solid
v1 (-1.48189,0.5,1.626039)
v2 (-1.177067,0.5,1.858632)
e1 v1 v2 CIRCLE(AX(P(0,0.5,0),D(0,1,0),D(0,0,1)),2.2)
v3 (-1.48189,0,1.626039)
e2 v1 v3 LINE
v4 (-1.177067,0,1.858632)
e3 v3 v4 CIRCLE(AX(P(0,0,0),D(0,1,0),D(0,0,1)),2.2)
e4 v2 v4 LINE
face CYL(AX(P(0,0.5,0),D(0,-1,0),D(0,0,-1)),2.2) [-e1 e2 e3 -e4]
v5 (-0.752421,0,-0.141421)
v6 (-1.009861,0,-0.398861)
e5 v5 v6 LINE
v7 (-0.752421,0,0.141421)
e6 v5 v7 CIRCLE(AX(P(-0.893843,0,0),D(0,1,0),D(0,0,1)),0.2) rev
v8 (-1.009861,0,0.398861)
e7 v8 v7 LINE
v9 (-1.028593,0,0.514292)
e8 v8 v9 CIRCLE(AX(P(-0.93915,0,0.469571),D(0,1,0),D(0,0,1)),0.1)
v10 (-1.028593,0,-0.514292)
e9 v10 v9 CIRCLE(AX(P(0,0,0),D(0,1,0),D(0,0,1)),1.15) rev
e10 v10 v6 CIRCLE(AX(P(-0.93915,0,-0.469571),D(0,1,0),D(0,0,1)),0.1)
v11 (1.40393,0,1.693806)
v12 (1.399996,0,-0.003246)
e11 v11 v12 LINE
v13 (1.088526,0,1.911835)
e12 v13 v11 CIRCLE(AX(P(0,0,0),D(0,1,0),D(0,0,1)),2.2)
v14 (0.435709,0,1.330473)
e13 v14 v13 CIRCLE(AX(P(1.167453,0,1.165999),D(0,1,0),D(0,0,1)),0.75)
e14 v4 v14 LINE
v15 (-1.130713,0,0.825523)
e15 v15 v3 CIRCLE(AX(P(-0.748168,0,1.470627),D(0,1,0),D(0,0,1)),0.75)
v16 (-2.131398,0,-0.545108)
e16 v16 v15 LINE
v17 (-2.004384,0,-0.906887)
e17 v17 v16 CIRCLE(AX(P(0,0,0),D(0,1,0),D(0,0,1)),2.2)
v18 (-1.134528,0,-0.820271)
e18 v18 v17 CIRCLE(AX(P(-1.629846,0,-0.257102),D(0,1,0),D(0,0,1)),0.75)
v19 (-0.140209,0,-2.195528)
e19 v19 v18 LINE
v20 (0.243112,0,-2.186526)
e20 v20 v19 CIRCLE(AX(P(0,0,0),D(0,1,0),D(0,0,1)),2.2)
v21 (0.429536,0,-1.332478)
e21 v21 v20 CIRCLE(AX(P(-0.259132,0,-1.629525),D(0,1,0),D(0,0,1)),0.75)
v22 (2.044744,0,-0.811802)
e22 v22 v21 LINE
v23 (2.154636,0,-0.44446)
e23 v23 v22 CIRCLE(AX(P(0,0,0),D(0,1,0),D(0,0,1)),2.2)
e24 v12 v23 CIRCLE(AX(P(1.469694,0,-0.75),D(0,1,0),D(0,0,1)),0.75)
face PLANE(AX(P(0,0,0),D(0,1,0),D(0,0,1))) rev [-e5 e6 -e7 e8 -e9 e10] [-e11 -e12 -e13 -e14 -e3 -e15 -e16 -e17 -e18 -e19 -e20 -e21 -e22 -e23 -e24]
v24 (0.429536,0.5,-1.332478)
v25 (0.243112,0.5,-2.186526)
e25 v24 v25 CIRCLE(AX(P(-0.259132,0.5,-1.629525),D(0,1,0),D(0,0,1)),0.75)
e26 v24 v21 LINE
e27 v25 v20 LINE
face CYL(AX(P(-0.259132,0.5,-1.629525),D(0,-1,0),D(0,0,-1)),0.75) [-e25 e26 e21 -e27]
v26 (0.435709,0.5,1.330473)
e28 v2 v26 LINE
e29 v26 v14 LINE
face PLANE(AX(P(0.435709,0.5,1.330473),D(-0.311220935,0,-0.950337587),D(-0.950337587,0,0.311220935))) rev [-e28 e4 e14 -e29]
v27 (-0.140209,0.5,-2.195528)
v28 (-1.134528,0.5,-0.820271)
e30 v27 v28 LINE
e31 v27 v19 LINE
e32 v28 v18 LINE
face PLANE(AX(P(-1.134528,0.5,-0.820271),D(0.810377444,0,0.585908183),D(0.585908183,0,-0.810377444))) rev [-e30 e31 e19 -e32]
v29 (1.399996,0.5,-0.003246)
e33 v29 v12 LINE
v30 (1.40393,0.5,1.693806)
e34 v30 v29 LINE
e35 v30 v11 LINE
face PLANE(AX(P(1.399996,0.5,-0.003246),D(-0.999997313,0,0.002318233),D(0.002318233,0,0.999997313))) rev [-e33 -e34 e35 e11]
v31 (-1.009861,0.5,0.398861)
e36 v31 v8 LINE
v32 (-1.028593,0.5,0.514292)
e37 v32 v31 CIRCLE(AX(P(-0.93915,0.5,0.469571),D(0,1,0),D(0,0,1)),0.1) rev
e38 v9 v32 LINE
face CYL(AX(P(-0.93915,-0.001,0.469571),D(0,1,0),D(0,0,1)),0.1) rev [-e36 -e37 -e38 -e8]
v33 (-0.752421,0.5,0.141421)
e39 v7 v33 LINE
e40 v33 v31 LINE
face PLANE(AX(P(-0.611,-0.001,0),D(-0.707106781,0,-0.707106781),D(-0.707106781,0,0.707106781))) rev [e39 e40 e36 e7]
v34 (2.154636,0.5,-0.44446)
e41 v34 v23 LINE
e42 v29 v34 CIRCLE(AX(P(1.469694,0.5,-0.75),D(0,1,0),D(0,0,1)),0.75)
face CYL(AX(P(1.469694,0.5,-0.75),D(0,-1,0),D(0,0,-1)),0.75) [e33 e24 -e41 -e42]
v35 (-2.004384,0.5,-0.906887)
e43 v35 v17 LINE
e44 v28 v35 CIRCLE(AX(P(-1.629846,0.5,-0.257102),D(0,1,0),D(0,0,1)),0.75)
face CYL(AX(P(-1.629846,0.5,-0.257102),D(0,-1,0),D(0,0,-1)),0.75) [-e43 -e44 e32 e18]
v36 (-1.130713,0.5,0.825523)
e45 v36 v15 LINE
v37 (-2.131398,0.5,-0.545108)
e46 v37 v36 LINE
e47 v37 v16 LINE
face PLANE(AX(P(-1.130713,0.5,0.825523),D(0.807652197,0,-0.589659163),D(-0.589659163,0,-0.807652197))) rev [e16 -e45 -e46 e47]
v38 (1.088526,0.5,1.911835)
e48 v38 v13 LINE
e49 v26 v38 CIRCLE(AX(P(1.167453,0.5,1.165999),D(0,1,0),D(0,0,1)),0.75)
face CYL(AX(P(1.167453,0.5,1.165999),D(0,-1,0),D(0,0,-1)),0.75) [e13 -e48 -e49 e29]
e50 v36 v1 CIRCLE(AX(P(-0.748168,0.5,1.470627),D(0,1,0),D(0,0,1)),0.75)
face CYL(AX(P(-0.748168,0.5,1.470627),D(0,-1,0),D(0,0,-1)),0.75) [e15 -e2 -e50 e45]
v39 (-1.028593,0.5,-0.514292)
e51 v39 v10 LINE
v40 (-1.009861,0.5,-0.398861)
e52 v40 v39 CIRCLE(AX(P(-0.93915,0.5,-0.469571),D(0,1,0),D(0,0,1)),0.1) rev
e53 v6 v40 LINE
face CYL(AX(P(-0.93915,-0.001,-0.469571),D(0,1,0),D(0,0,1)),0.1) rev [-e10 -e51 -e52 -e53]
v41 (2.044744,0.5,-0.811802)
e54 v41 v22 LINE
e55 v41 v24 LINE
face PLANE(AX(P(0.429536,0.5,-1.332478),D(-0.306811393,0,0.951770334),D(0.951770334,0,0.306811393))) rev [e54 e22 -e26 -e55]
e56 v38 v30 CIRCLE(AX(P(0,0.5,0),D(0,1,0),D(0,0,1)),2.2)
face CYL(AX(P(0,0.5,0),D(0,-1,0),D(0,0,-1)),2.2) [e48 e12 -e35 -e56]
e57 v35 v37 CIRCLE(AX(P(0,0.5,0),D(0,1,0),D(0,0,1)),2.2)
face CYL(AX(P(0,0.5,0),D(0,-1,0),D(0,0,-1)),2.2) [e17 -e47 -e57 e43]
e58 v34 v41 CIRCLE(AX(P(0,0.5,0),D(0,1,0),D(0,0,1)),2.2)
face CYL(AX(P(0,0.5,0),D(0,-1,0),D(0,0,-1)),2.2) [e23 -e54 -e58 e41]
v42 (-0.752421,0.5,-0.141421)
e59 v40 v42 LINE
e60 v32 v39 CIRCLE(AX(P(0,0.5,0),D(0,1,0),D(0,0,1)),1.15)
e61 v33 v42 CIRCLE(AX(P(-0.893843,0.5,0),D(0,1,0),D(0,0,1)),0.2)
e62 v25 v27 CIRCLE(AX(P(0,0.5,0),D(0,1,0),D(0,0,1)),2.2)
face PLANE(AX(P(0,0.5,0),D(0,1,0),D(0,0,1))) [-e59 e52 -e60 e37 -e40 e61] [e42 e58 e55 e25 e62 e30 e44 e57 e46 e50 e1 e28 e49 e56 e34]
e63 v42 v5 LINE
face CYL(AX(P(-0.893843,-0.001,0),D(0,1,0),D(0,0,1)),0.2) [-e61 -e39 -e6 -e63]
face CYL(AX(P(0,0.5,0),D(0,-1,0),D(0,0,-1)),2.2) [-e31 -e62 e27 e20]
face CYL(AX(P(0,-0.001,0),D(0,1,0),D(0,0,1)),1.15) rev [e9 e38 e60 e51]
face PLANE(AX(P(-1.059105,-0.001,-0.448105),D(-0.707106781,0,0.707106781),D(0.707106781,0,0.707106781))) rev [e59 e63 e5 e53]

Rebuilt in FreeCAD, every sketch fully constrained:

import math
import FreeCAD as App
import Part
import Sketcher

V = App.Vector


def edges_at(feature, points):
    """Names of the edges that pass closest to the given points."""
    edges = feature.Shape.Edges
    near = lambda p: min(range(len(edges)), key=lambda i: edges[i].distToShape(Part.Vertex(*p))[0])
    return sorted({f"Edge{near(p) + 1}" for p in points})

doc = App.newDocument("Part")
params = doc.addObject("Spreadsheet::Sheet", "Params")
for row, (alias, value) in enumerate([
    ("sketch1_radius", "2.2 mm"),
    ("sketch1_radius2", "2.2 mm"),
    ("sketch1_radius3", "2.2 mm"),
    ("sketch1_radius4", "2.2 mm"),
    ("sketch1_radius5", "2.2 mm"),
    ("pad1_length", "0.5 mm"),
    ("sketch2_radius", "1.15 mm"),
    ("fillet_radius", "0.1 mm"),
    ("fillet2_radius", "0.2 mm"),
], start=1):
    params.set(f"A{row}", alias)
    params.set(f"B{row}", "=" + value)
    params.setAlias(f"B{row}", alias)

body = doc.addObject("PartDesign::Body", "Body")

# Sketch on XZ plane
sketch1 = body.newObject("Sketcher::SketchObject", "Sketch")
sketch1.AttachmentSupport = (doc.getObject("XZ_Plane"), [""])
sketch1.MapMode = "FlatFace"
sketch1.addGeometry(Part.LineSegment(V(-2.131398, -0.545108, 0), V(-1.130713, 0.825523, 0)), False)
sketch1.addGeometry(Part.ArcOfCircle(Part.Circle(V(-0.748168, 1.470627, 0), V(0, 0, 1), 0.75), math.radians(168.040762), math.radians(239.332199)), False)
sketch1.addGeometry(Part.ArcOfCircle(Part.Circle(V(0, 0, 0), V(0, 0, 1), 2.2), math.radians(122.345979), math.radians(132.344462)), False)
sketch1.addGeometry(Part.LineSegment(V(-1.177067, 1.858632, 0), V(0.435709, 1.330473, 0)), False)
sketch1.addGeometry(Part.ArcOfCircle(Part.Circle(V(1.167453, 1.165999, 0), V(0, 0, 1), 0.75), math.radians(96.040762), math.radians(167.332199)), False)
sketch1.addGeometry(Part.ArcOfCircle(Part.Circle(V(0, 0, 0), V(0, 0, 1), 2.2), math.radians(50.345978), math.radians(60.344463)), False)
sketch1.addGeometry(Part.LineSegment(V(1.40393, 1.693806, 0), V(1.399996, -0.003246, 0)), False)
sketch1.addGeometry(Part.ArcOfCircle(Part.Circle(V(1.469694, -0.75, 0), V(0, 0, 1), 0.75), math.radians(24.040762), math.radians(95.332199)), False)
sketch1.addGeometry(Part.ArcOfCircle(Part.Circle(V(0, 0, 0), V(0, 0, 1), 2.2), math.radians(-21.654022), math.radians(-11.655537)), False)
sketch1.addGeometry(Part.LineSegment(V(2.044744, -0.811802, 0), V(0.429536, -1.332478, 0)), False)
sketch1.addGeometry(Part.ArcOfCircle(Part.Circle(V(-0.259132, -1.629525, 0), V(0, 0, 1), 0.75), math.radians(-47.959238), math.radians(23.332199)), False)
sketch1.addGeometry(Part.ArcOfCircle(Part.Circle(V(0, 0, 0), V(0, 0, 1), 2.2), math.radians(-93.654021), math.radians(-83.655538)), False)
sketch1.addGeometry(Part.LineSegment(V(-0.140209, -2.195528, 0), V(-1.134528, -0.820271, 0)), False)
sketch1.addGeometry(Part.ArcOfCircle(Part.Circle(V(-1.629846, -0.257102, 0), V(0, 0, 1), 0.75), math.radians(-119.959238), math.radians(-48.667801)), False)
sketch1.addGeometry(Part.ArcOfCircle(Part.Circle(V(0, 0, 0), V(0, 0, 1), 2.2), math.radians(-165.654021), math.radians(-155.655538)), False)
sketch1.addConstraint(Sketcher.Constraint("Coincident", 0, 2, 1, 2))
sketch1.addConstraint(Sketcher.Constraint("Coincident", 1, 1, 2, 2))
sketch1.addConstraint(Sketcher.Constraint("Coincident", 2, 1, 3, 1))
sketch1.addConstraint(Sketcher.Constraint("Coincident", 3, 2, 4, 2))
sketch1.addConstraint(Sketcher.Constraint("Coincident", 4, 1, 5, 2))
sketch1.addConstraint(Sketcher.Constraint("Coincident", 5, 1, 6, 1))
sketch1.addConstraint(Sketcher.Constraint("Coincident", 6, 2, 7, 2))
sketch1.addConstraint(Sketcher.Constraint("Coincident", 7, 1, 8, 2))
sketch1.addConstraint(Sketcher.Constraint("Coincident", 8, 1, 9, 1))
sketch1.addConstraint(Sketcher.Constraint("Coincident", 9, 2, 10, 2))
sketch1.addConstraint(Sketcher.Constraint("Coincident", 10, 1, 11, 2))
sketch1.addConstraint(Sketcher.Constraint("Coincident", 11, 1, 12, 1))
sketch1.addConstraint(Sketcher.Constraint("Coincident", 12, 2, 13, 2))
sketch1.addConstraint(Sketcher.Constraint("Coincident", 13, 1, 14, 2))
sketch1.addConstraint(Sketcher.Constraint("Coincident", 14, 1, 0, 1))
sketch1.addConstraint(Sketcher.Constraint("Coincident", 2, 3, -1, 1))
sketch1.addConstraint(Sketcher.Constraint("Coincident", 5, 3, -1, 1))
sketch1.addConstraint(Sketcher.Constraint("Coincident", 8, 3, -1, 1))
sketch1.addConstraint(Sketcher.Constraint("Coincident", 11, 3, -1, 1))
sketch1.addConstraint(Sketcher.Constraint("Coincident", 14, 3, -1, 1))
sketch1.addConstraint(Sketcher.Constraint("Radius", 2, 2.2))
sketch1.addConstraint(Sketcher.Constraint("Radius", 5, 2.2))
sketch1.addConstraint(Sketcher.Constraint("Radius", 8, 2.2))
sketch1.addConstraint(Sketcher.Constraint("Radius", 11, 2.2))
sketch1.addConstraint(Sketcher.Constraint("Radius", 14, 2.2))
sketch1.addConstraint(Sketcher.Constraint("Radius", 1, 0.75))
sketch1.addConstraint(Sketcher.Constraint("Radius", 4, 0.75))
sketch1.addConstraint(Sketcher.Constraint("Radius", 7, 0.75))
sketch1.addConstraint(Sketcher.Constraint("Radius", 10, 0.75))
sketch1.addConstraint(Sketcher.Constraint("Radius", 13, 0.75))
sketch1.addConstraint(Sketcher.Constraint("DistanceY", 7, 3, -1, 1, 0.75))
sketch1.addConstraint(Sketcher.Constraint("DistanceY", -1, 1, 4, 3, 1.165999))
sketch1.addConstraint(Sketcher.Constraint("DistanceY", 10, 1, 10, 3, 0.557001))
sketch1.addConstraint(Sketcher.Constraint("DistanceY", 11, 1, 10, 1, 0.009001))
sketch1.addConstraint(Sketcher.Constraint("DistanceY", 13, 3, -1, 1, 0.257102))
sketch1.addConstraint(Sketcher.Constraint("DistanceX", 2, 1, 1, 3, 0.428899))
sketch1.addConstraint(Sketcher.Constraint("DistanceX", 1, 3, 5, 1, 2.152099))
sketch1.addConstraint(Sketcher.Constraint("DistanceY", 8, 1, 4, 3, 1.977801))
sketch1.addConstraint(Sketcher.Constraint("DistanceX", 1, 3, -1, 1, 0.748168))
sketch1.addConstraint(Sketcher.Constraint("DistanceX", 1, 1, -1, 1, 1.48189))
sketch1.addConstraint(Sketcher.Constraint("DistanceX", -1, 1, 3, 2, 0.435709))
sketch1.addConstraint(Sketcher.Constraint("DistanceY", 7, 1, -1, 1, 0.44446))
sketch1.addConstraint(Sketcher.Constraint("DistanceY", 9, 2, -1, 1, 1.332478))
sketch1.addConstraint(Sketcher.Constraint("DistanceX", 11, 1, -1, 1, 0.140209))
sketch1.addConstraint(Sketcher.Constraint("DistanceX", 12, 2, -1, 1, 1.134528))
sketch1.addConstraint(Sketcher.Constraint("DistanceY", 12, 2, -1, 1, 0.820271))
sketch1.addConstraint(Sketcher.Constraint("DistanceY", 14, 1, -1, 1, 0.545108))
sketch1.addConstraint(Sketcher.Constraint("DistanceX", 1, 3, 4, 3, 1.915621))
sketch1.addConstraint(Sketcher.Constraint("DistanceY", 0, 2, 2, 1, 1.033109))
sketch1.addConstraint(Sketcher.Constraint("DistanceX", 6, 2, 7, 1, 0.75464))
sketch1.setExpression("Constraints[20]", "Params.sketch1_radius")
sketch1.setExpression("Constraints[21]", "Params.sketch1_radius2")
sketch1.setExpression("Constraints[22]", "Params.sketch1_radius3")
sketch1.setExpression("Constraints[23]", "Params.sketch1_radius4")
sketch1.setExpression("Constraints[24]", "Params.sketch1_radius5")
pad1 = body.newObject("PartDesign::Pad", "Pad")
pad1.Profile = sketch1
pad1.setExpression("Length", "Params.pad1_length")
pad1.Reversed = True

# Sketch on XZ plane
sketch2 = body.newObject("Sketcher::SketchObject", "Sketch001")
sketch2.AttachmentSupport = (doc.getObject("XZ_Plane"), [""])
sketch2.MapMode = "FlatFace"
sketch2.AttachmentOffset = App.Placement(V(0, 0, -0.5), App.Rotation())
sketch2.addGeometry(Part.LineSegment(V(-1.1, -0.4, 0), V(-0.6, 0, 0)), False)
sketch2.addGeometry(Part.LineSegment(V(-0.6, 0, 0), V(-1.1, 0.4, 0)), False)
sketch2.addGeometry(Part.ArcOfCircle(Part.Circle(V(0, 0, 0), V(0, 0, 1), 1.1), math.radians(-157), math.radians(157)), False)
sketch2.addConstraint(Sketcher.Constraint("Coincident", 0, 2, 1, 1))
sketch2.addConstraint(Sketcher.Constraint("Coincident", 1, 2, 2, 2))
sketch2.addConstraint(Sketcher.Constraint("Coincident", 2, 1, 0, 1))
sketch2.addConstraint(Sketcher.Constraint("Coincident", 2, 3, -1, 1))
sketch2.addConstraint(Sketcher.Constraint("PointOnObject", 0, 2, -1))
sketch2.addConstraint(Sketcher.Constraint("Perpendicular", 0, 1))
sketch2.addConstraint(Sketcher.Constraint("Vertical", 1, 2, 2, 1))
sketch2.addConstraint(Sketcher.Constraint("Radius", 2, 1.15))
sketch2.addConstraint(Sketcher.Constraint("DistanceX", 0, 2, -1, 1, 0.611))
sketch2.setExpression("Constraints[7]", "Params.sketch2_radius")
pocket1 = body.newObject("PartDesign::Pocket", "Pocket")
pocket1.Profile = sketch2
pocket1.Type = "UpToFirst"
pocket1.Reversed = True
doc.recompute()

fillet = body.newObject("PartDesign::Fillet", "Fillet")
fillet.Base = (pocket1, edges_at(pocket1, [(-1.059, 0.25, -0.448), (-1.059, 0.25, 0.448)]))
fillet.setExpression("Radius", "Params.fillet_radius")
doc.recompute()

fillet2 = body.newObject("PartDesign::Fillet", "Fillet001")
fillet2.Base = (fillet, edges_at(fillet, [(-0.611, 0.25, 0)]))
fillet2.setExpression("Radius", "Params.fillet2_radius")

doc.recompute()
